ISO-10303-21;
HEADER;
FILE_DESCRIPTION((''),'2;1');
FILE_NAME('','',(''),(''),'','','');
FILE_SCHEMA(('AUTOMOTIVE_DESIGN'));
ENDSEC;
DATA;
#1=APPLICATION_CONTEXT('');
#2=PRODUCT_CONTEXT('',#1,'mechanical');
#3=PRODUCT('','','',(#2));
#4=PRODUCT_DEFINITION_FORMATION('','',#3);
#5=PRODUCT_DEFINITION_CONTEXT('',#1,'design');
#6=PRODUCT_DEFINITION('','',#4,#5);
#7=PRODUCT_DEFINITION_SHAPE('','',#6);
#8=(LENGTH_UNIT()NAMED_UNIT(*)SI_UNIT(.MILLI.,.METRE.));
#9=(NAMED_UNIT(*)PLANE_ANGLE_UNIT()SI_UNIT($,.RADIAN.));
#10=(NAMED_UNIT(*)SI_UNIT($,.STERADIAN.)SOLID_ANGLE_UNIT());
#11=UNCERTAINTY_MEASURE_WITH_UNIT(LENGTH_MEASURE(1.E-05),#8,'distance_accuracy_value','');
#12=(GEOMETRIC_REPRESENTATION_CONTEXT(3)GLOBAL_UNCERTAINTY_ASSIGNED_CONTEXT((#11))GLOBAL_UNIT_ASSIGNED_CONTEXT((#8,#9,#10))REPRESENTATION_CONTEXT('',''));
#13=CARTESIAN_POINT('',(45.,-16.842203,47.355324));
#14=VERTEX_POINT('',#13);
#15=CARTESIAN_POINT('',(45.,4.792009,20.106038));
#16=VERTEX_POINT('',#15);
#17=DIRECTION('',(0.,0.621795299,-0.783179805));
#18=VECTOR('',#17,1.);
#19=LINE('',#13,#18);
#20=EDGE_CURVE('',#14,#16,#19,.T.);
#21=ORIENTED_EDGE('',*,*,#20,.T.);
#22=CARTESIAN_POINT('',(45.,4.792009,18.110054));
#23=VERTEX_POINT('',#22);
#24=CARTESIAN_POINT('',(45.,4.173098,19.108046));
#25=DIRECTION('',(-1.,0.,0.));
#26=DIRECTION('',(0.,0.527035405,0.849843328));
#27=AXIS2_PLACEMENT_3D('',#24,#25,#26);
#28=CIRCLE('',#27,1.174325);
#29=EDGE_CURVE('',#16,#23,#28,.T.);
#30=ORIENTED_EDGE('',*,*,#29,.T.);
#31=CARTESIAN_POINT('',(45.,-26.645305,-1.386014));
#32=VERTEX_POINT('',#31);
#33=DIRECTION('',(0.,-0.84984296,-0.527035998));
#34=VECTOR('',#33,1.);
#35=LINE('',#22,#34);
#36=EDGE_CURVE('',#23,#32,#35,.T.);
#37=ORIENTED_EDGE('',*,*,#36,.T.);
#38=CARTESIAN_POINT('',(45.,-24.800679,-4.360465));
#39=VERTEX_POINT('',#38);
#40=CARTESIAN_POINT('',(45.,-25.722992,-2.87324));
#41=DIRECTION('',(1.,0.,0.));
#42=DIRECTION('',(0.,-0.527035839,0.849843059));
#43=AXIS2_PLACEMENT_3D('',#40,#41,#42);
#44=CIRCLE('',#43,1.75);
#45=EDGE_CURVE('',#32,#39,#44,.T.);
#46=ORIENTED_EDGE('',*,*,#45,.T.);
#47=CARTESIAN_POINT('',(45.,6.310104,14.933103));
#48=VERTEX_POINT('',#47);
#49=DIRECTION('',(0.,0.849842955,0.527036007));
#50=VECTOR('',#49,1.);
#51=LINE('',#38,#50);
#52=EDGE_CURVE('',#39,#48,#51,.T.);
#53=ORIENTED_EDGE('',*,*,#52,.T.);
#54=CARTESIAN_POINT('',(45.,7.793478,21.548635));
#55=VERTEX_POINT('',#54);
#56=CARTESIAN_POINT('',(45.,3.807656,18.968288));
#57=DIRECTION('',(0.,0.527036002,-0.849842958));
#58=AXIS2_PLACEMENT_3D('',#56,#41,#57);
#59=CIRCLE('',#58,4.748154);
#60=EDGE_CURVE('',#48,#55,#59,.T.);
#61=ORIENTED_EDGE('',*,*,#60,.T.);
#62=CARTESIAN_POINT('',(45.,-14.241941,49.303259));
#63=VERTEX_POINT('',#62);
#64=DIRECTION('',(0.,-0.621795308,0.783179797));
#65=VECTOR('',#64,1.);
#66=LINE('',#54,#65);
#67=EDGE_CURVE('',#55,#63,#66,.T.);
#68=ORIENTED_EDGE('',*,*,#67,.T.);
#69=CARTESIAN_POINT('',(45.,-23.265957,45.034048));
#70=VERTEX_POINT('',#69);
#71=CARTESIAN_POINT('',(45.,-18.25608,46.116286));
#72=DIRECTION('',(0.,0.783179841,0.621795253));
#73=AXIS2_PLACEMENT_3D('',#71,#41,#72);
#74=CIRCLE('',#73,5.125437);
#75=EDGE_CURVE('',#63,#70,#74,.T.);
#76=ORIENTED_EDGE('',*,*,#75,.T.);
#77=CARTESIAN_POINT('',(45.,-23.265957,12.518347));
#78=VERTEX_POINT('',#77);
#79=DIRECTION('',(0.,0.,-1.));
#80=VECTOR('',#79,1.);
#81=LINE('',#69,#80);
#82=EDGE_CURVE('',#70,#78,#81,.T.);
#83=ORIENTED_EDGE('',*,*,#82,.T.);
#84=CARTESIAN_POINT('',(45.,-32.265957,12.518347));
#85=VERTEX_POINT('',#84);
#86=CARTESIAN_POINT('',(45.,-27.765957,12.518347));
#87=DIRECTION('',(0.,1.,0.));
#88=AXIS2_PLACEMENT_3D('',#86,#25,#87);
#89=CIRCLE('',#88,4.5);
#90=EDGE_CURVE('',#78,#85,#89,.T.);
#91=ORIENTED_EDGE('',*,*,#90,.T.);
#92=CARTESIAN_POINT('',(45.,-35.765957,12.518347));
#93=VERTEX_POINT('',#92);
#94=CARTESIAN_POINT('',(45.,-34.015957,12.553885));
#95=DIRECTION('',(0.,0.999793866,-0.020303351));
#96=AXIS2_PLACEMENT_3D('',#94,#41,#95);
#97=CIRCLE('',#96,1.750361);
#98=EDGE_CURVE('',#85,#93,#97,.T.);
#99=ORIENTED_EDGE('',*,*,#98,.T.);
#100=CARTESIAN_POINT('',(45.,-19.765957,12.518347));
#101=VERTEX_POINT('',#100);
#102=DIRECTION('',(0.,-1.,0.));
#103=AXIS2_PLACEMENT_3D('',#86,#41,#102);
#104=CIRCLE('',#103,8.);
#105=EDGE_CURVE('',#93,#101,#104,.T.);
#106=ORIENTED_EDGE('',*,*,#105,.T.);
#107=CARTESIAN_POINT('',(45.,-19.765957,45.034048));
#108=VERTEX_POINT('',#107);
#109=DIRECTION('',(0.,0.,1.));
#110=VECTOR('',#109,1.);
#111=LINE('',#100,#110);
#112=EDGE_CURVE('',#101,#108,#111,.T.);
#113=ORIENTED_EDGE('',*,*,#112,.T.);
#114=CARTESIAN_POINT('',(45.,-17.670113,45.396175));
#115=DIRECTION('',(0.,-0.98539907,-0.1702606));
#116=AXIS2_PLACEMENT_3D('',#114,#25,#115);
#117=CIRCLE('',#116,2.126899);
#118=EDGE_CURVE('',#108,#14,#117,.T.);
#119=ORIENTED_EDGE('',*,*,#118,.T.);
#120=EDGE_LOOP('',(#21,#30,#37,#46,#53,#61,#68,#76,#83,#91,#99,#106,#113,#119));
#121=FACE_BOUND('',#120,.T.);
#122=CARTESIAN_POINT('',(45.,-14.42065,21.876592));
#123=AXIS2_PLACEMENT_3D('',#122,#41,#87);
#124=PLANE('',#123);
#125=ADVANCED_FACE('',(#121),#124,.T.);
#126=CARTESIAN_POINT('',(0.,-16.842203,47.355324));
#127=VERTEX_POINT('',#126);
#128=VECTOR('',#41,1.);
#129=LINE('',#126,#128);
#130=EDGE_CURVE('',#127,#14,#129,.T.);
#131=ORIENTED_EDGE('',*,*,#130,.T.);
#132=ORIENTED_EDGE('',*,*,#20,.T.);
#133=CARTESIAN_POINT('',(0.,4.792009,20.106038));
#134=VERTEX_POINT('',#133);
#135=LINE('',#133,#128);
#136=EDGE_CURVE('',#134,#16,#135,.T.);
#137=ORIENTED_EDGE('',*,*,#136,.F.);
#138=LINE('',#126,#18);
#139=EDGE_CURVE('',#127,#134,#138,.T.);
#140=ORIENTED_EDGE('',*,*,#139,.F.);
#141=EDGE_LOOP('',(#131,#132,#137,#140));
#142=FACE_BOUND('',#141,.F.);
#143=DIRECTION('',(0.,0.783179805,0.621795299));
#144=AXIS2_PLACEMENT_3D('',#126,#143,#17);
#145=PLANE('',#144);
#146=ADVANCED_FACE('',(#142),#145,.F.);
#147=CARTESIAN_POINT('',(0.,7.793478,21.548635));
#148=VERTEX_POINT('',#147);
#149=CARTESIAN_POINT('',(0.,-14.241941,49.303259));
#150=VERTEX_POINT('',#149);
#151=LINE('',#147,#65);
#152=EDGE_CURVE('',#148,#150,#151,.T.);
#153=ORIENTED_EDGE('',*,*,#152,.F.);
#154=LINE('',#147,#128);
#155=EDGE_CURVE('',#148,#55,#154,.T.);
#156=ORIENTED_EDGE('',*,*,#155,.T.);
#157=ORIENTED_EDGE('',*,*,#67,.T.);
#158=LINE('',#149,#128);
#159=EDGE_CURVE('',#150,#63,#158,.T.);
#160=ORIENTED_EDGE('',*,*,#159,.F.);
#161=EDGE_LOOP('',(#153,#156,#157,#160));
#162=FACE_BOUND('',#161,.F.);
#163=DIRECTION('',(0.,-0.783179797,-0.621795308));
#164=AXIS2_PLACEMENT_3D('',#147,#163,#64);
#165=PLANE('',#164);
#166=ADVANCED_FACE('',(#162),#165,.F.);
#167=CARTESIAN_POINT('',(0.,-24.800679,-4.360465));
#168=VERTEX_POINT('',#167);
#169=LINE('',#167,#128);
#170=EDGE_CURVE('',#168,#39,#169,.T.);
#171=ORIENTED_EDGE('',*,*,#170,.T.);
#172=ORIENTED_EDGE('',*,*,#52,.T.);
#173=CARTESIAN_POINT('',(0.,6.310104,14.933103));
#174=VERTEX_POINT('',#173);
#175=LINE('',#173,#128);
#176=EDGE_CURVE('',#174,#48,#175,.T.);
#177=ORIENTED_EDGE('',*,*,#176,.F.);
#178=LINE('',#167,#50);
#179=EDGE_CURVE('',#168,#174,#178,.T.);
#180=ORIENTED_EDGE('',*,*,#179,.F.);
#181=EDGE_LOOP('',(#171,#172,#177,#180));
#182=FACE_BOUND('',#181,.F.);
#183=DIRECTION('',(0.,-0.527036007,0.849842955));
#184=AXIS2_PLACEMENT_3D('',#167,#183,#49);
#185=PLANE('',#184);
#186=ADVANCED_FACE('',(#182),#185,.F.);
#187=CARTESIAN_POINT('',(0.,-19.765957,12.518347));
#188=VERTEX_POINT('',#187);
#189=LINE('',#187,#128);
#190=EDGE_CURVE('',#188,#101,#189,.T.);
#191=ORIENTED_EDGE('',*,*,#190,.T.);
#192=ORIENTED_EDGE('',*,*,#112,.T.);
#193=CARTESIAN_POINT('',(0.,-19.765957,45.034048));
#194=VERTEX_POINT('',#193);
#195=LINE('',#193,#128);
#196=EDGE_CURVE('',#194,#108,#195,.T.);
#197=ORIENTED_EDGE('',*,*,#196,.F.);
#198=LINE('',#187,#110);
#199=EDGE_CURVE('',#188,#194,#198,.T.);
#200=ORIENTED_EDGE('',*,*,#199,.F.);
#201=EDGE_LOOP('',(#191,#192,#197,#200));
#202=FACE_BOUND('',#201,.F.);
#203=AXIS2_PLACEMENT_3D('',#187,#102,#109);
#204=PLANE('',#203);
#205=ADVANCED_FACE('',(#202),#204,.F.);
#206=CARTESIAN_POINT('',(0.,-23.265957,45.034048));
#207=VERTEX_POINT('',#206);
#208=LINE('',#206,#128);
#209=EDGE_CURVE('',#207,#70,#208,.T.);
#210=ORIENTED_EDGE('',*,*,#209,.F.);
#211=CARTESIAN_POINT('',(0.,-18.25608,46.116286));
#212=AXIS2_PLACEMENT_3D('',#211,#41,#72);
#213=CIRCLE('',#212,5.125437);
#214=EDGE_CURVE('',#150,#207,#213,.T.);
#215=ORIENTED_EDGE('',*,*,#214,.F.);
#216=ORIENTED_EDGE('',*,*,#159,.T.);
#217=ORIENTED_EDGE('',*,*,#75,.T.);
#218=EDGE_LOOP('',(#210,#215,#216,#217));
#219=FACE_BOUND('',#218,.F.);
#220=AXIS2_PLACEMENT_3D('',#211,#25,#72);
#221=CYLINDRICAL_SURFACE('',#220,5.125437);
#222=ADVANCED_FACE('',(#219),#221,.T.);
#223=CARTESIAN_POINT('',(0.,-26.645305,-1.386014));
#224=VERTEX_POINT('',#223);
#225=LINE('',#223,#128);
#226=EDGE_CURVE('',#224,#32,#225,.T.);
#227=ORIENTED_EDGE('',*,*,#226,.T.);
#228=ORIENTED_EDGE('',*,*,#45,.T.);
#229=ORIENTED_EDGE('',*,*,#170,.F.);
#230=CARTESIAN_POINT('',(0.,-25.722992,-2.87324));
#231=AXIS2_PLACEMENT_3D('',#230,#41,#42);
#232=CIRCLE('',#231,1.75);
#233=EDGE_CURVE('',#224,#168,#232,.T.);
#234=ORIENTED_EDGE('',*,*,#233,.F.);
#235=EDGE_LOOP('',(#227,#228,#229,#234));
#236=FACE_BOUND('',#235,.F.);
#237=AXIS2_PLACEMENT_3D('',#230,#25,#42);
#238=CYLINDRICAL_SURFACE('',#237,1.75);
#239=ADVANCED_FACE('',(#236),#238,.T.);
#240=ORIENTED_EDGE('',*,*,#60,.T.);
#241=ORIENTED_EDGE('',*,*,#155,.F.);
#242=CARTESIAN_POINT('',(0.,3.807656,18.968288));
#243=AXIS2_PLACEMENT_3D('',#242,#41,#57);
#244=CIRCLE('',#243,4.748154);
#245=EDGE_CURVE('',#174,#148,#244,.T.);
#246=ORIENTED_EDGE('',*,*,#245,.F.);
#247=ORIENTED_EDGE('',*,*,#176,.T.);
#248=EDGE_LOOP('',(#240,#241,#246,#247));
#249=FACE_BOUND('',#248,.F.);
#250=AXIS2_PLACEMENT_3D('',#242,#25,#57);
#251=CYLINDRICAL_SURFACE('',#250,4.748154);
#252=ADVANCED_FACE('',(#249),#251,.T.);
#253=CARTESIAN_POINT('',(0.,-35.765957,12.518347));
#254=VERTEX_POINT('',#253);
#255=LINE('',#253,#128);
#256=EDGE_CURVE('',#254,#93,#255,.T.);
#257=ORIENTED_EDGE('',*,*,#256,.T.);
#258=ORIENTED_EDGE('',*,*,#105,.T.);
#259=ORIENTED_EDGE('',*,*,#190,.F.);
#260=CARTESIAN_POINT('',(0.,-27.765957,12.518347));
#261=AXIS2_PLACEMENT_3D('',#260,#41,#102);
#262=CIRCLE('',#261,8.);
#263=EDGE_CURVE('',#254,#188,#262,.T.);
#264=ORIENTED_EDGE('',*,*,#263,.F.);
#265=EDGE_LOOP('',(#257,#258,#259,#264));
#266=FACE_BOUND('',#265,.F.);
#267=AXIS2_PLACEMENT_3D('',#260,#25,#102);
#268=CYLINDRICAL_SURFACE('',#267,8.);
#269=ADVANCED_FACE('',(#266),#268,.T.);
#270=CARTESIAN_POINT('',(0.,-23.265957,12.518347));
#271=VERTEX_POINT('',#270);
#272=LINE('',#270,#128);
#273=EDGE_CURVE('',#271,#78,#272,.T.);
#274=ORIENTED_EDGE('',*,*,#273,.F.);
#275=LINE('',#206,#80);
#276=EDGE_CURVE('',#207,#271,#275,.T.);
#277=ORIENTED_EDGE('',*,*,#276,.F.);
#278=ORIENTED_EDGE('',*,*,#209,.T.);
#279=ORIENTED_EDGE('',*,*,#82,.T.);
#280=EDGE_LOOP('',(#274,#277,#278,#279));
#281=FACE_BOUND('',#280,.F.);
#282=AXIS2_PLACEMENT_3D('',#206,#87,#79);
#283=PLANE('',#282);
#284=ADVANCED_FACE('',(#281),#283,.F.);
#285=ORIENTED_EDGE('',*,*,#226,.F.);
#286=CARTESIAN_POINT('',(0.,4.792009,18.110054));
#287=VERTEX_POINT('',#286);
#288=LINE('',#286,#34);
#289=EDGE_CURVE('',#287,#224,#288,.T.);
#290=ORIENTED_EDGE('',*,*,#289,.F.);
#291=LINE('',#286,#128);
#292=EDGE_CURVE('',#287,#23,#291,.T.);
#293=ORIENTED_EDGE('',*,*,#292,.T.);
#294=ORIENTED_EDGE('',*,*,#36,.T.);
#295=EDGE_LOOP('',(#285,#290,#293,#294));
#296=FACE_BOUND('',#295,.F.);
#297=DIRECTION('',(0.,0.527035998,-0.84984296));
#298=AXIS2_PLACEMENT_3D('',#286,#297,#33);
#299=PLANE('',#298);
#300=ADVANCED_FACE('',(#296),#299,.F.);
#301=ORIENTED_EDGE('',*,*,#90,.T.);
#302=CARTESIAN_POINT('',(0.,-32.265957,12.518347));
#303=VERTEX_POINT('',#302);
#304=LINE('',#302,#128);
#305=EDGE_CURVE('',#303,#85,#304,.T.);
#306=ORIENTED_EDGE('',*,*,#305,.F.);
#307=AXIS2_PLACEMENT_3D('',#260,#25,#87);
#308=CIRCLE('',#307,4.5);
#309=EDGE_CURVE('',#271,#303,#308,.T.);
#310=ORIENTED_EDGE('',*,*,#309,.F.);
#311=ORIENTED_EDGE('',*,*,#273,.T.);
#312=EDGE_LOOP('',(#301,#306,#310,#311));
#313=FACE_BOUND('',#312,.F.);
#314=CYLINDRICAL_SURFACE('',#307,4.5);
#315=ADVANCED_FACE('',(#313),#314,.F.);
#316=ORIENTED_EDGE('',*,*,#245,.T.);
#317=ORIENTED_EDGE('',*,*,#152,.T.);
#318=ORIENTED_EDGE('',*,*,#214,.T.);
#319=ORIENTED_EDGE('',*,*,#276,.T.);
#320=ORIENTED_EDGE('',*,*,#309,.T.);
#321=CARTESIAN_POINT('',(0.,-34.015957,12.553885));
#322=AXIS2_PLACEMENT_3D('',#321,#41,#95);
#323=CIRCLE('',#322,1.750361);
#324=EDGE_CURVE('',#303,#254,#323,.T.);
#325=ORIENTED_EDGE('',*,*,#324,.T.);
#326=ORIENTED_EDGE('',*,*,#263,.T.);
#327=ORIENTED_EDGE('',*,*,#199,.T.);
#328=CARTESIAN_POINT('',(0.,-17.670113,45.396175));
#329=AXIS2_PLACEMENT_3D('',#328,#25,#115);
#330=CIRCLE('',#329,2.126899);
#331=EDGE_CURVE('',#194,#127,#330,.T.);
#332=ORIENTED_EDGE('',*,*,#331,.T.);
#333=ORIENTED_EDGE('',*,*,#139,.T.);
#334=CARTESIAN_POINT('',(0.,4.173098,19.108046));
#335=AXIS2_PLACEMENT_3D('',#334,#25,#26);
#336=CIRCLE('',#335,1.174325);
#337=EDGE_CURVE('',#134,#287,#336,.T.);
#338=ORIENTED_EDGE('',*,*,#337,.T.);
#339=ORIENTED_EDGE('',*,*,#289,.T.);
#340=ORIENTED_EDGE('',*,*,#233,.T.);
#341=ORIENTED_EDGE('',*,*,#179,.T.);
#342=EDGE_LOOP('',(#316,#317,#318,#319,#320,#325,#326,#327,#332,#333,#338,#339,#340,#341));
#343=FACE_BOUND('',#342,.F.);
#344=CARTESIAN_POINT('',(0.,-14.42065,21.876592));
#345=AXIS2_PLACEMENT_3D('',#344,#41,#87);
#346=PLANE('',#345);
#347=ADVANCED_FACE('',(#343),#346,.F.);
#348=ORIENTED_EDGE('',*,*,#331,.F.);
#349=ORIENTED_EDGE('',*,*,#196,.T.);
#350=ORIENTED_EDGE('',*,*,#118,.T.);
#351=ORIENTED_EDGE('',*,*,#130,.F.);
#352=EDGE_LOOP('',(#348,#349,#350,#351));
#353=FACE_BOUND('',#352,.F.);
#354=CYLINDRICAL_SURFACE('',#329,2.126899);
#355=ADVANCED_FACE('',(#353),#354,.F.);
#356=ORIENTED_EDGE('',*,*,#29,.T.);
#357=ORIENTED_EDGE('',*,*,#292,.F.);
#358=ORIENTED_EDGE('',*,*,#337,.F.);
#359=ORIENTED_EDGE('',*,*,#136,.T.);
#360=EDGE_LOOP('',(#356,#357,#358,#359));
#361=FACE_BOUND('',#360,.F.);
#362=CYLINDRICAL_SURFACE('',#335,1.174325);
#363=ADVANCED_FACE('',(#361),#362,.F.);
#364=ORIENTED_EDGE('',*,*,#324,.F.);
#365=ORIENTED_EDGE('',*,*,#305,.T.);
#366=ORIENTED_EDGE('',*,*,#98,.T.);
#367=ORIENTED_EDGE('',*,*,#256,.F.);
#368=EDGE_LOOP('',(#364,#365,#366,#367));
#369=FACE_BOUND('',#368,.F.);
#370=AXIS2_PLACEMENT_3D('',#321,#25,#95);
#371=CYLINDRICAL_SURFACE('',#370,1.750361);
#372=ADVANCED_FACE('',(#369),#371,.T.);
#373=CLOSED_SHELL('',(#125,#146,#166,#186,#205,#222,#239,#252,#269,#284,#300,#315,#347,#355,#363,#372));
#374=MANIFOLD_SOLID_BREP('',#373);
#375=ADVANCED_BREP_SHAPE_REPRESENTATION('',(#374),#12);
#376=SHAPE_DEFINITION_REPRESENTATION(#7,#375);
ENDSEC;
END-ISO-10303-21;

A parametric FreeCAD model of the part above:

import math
import FreeCAD as App
import Part
import Sketcher

V = App.Vector
Q = App.Units.Quantity

doc = App.newDocument("Part")
body = doc.addObject("PartDesign::Body", "Body")

# Sketch on YZ plane
sketch1 = body.newObject("Sketcher::SketchObject", "Sketch")
sketch1.AttachmentSupport = (doc.getObject("YZ_Plane"), [""])
sketch1.MapMode = "FlatFace"
sketch1.addGeometry([
    Part.LineSegment(V(-23.265957, 45.034048, 0), V(-23.265957, 12.518347, 0)),  # 0
    Part.ArcOfCircle(Part.Circle(V(-27.765957, 12.518347, 0), V(0, 0, 1), 4.5), math.radians(180), math.radians(360)),  # 1
    Part.ArcOfCircle(Part.Circle(V(-34.015957, 12.553885, 0), V(0, 0, 1), 1.750361), math.radians(-1.163376), math.radians(181.163376)),  # 2
    Part.ArcOfCircle(Part.Circle(V(-27.765957, 12.518347, 0), V(0, 0, 1), 8), math.radians(180), math.radians(360)),  # 3
    Part.LineSegment(V(-19.765957, 12.518347, 0), V(-19.765957, 45.034048, 0)),  # 4
    Part.ArcOfCircle(Part.Circle(V(-17.670113, 45.396175, 0), V(0, 0, 1), 2.126899), math.radians(67.09174), math.radians(189.802971)),  # 5
    Part.LineSegment(V(-16.842203, 47.355324, 0), V(4.792009, 20.106038, 0)),  # 6
    Part.ArcOfCircle(Part.Circle(V(4.173098, 19.108046, 0), V(0, 0, 1), 1.174325), math.radians(-58.194633), math.radians(58.194633)),  # 7
    Part.LineSegment(V(4.792009, 18.110054, 0), V(-26.645305, -1.386014, 0)),  # 8
    Part.ArcOfCircle(Part.Circle(V(-25.722992, -2.87324, 0), V(0, 0, 1), 1.75), math.radians(121.805396), math.radians(301.805407)),  # 9
    Part.LineSegment(V(-24.800679, -4.360465, 0), V(6.310104, 14.933103, 0)),  # 10
    Part.ArcOfCircle(Part.Circle(V(3.807656, 18.968288, 0), V(0, 0, 1), 4.748154), math.radians(-58.194593), math.radians(32.918264)),  # 11
    Part.LineSegment(V(7.793478, 21.548635, 0), V(-14.241941, 49.303259, 0)),  # 12
    Part.ArcOfCircle(Part.Circle(V(-18.25608, 46.116286, 0), V(0, 0, 1), 5.125437), math.radians(38.447352), math.radians(192.189781)),  # 13
], False)
sketch1.addConstraint([
    Sketcher.Constraint("Coincident", 0, 2, 1, 2),
    Sketcher.Constraint("Coincident", 1, 1, 2, 1),
    Sketcher.Constraint("Coincident", 2, 2, 3, 1),
    Sketcher.Constraint("Coincident", 3, 2, 4, 1),
    Sketcher.Constraint("Coincident", 4, 2, 5, 2),
    Sketcher.Constraint("Coincident", 5, 1, 6, 1),
    Sketcher.Constraint("Coincident", 6, 2, 7, 2),
    Sketcher.Constraint("Coincident", 7, 1, 8, 1),
    Sketcher.Constraint("Coincident", 8, 2, 9, 1),
    Sketcher.Constraint("Coincident", 9, 2, 10, 1),
    Sketcher.Constraint("Coincident", 10, 2, 11, 1),
    Sketcher.Constraint("Coincident", 11, 2, 12, 1),
    Sketcher.Constraint("Coincident", 12, 2, 13, 1),
    Sketcher.Constraint("Coincident", 13, 2, 0, 1),
    Sketcher.Constraint("Vertical", 0),
    Sketcher.Constraint("Vertical", 4),
    Sketcher.Constraint("Coincident", 3, 3, 1, 3),
    Sketcher.Constraint("Radius", 3, Q("8 mm")),
    Sketcher.Constraint("Radius", 1, Q("4.5 mm")),
    Sketcher.Constraint("Radius", 9, Q("1.75 mm")),
    Sketcher.Constraint("Radius", 5, Q("2.126899 mm")),
    Sketcher.Constraint("Radius", 2, Q("1.750361 mm")),
    Sketcher.Constraint("DistanceX", 2, 3, 1, 3, Q("6.25 mm")),
    Sketcher.Constraint("DistanceY", 0, 2, 0, 1, Q("32.515701 mm")),
    Sketcher.Constraint("DistanceY", 4, 1, 4, 2, Q("32.515701 mm")),
    Sketcher.Constraint("Radius", 7, Q("1.174325 mm")),
    Sketcher.Constraint("Radius", 11, Q("4.748154 mm")),
    Sketcher.Constraint("Radius", 13, Q("5.125437 mm")),
    Sketcher.Constraint("DistanceY", 11, 3, 13, 3, Q("27.147998 mm")),
    Sketcher.Constraint("DistanceX", -1, 1, 7, 3, Q("4.173098 mm")),
    Sketcher.Constraint("DistanceY", 1, 3, 7, 3, Q("6.589699 mm")),
    Sketcher.Constraint("DistanceY", 0, 2, 4, 2, Q("32.515701 mm")),
    Sketcher.Constraint("DistanceY", 1, 3, 4, 2, Q("32.515701 mm")),
    Sketcher.Constraint("Distance", 6, Q("34.793142 mm")),
    Sketcher.Constraint("Distance", 8, Q("36.99191 mm")),
    Sketcher.Constraint("Distance", 12, Q("35.438381 mm")),
    Sketcher.Constraint("DistanceY", 9, 3, -1, 1, Q("2.87324 mm")),
    Sketcher.Constraint("DistanceY", -1, 1, 11, 3, Q("18.968288 mm")),
    Sketcher.Constraint("DistanceX", 13, 3, -1, 1, Q("18.25608 mm")),
    Sketcher.Constraint("DistanceX", -1, 1, 6, 2, Q("4.792009 mm")),
    Sketcher.Constraint("DistanceY", -1, 1, 6, 2, Q("20.106038 mm")),
    Sketcher.Constraint("DistanceX", -1, 1, 7, 1, Q("4.792009 mm")),
    Sketcher.Constraint("DistanceX", 9, 2, -1, 1, Q("24.800679 mm")),
    Sketcher.Constraint("DistanceX", -1, 1, 11, 2, Q("7.793478 mm")),
    Sketcher.Constraint("DistanceX", 12, 2, -1, 1, Q("14.241941 mm")),
    Sketcher.Constraint("DistanceY", 1, 3, 2, 3, Q("0.035538 mm")),
    Sketcher.Constraint("DistanceY", 1, 3, 5, 3, Q("32.877828 mm")),
    Sketcher.Constraint("DistanceX", 9, 3, 7, 3, Q("29.89609 mm")),
    Sketcher.Constraint("DistanceY", 10, 2, 7, 1, Q("3.176951 mm")),
])
pad1 = body.newObject("PartDesign::Pad", "Pad")
pad1.Profile = sketch1
pad1.Length = 45

doc.recompute()
